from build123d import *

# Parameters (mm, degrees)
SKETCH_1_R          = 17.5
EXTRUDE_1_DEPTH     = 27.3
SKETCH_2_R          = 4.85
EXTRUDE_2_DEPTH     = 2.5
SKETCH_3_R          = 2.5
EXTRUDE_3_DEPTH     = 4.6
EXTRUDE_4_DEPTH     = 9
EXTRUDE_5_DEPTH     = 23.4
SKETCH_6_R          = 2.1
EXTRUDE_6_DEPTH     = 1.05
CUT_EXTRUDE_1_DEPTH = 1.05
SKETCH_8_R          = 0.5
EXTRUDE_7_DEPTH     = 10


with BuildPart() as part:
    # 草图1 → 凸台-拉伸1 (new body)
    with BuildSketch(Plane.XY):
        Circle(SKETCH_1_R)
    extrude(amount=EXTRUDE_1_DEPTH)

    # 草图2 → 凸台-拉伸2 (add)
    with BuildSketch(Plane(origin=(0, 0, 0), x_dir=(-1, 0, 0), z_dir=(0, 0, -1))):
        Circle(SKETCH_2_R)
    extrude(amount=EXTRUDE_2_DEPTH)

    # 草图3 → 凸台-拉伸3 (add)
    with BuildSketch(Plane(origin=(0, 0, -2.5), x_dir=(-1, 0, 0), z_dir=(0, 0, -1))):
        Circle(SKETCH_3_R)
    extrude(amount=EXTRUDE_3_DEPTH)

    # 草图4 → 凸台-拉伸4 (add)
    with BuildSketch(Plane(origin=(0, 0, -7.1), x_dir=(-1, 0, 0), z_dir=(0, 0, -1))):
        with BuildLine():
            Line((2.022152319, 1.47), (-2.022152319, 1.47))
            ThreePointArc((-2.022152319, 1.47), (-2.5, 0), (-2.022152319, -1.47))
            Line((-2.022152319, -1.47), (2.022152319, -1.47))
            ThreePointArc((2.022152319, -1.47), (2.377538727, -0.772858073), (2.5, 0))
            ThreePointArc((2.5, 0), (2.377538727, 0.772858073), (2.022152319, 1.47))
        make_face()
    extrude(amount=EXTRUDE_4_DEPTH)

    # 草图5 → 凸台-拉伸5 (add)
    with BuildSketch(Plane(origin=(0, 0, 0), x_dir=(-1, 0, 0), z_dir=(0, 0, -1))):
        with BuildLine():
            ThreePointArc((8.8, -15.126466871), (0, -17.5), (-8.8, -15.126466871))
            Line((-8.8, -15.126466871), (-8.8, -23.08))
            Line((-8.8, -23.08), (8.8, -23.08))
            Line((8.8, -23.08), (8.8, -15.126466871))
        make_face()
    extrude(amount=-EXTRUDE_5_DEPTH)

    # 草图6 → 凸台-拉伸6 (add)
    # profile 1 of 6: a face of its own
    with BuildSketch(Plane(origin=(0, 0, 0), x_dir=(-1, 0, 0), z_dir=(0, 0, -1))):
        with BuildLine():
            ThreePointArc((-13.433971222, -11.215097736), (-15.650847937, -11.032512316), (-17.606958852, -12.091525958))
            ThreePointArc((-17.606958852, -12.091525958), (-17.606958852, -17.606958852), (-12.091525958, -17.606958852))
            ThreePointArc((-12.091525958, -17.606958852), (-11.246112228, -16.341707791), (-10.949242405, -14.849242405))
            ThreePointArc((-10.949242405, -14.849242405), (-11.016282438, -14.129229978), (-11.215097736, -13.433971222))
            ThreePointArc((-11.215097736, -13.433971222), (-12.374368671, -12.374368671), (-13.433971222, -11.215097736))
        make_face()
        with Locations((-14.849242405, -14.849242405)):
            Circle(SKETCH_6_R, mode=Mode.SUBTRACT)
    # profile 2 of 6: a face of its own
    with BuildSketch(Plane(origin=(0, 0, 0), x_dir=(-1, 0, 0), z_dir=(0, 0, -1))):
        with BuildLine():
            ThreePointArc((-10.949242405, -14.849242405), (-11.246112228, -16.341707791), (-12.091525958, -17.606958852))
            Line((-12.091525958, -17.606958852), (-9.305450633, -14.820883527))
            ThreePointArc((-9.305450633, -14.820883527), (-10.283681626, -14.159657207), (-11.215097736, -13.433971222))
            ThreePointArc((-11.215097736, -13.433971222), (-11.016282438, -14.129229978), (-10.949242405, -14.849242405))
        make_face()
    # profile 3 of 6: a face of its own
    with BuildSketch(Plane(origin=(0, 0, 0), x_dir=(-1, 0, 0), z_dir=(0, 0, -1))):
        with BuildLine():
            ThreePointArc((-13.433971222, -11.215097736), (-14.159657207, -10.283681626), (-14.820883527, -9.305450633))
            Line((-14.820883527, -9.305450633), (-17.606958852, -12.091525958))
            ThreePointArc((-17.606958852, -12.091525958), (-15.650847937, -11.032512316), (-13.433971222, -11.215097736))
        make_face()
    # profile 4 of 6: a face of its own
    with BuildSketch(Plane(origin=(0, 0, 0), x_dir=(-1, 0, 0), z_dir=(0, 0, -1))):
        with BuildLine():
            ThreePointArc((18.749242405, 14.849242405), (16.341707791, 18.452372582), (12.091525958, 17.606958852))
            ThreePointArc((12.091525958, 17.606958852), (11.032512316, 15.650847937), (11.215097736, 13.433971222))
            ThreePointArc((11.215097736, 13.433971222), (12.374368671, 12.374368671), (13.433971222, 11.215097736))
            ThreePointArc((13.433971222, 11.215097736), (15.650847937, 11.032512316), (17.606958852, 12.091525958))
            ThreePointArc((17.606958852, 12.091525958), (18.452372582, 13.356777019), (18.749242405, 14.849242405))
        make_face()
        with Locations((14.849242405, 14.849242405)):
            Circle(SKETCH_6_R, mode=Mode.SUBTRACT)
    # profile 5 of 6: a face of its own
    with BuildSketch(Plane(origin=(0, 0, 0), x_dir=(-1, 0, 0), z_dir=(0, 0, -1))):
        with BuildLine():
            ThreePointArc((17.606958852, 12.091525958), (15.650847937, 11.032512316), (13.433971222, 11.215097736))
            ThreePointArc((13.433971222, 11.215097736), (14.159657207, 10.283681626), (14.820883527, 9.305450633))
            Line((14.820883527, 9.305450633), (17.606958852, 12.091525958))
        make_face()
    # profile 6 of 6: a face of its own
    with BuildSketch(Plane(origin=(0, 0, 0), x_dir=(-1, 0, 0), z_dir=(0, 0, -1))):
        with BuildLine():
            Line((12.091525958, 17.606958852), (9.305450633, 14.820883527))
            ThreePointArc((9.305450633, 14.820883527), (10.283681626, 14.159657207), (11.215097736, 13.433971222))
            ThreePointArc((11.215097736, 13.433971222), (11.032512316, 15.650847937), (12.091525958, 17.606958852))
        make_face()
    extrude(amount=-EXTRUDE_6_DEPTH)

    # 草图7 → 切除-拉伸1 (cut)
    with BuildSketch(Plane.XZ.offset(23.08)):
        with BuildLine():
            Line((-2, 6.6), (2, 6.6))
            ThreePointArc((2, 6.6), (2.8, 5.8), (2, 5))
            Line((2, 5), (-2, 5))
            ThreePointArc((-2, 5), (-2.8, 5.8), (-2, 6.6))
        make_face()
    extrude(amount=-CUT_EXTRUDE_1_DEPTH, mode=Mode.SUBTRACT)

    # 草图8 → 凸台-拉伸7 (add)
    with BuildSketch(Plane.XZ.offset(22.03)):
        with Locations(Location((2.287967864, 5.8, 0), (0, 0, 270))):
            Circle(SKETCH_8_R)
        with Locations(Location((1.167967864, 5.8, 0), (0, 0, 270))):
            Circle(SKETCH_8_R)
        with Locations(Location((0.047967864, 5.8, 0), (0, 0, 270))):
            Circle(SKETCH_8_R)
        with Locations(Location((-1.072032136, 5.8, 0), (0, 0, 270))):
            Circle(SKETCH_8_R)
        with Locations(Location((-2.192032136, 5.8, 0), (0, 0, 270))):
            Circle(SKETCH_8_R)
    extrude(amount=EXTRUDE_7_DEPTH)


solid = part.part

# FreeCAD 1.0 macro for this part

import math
import FreeCAD as App
import Part
import Sketcher

V = App.Vector
Q = App.Units.Quantity

doc = App.newDocument("Part")
params = doc.addObject("Spreadsheet::Sheet", "Params")
for row, (alias, value) in enumerate([
    ("sketch1_diameter", "35 mm"),
    ("pad1_length", "27.3 mm"),
    ("sketch2_diameter", "9.7 mm"),
    ("pad2_length", "2.5 mm"),
    ("sketch3_diameter", "5 mm"),
    ("pad3_length", "4.6 mm"),
    ("sketch4_radius", "2.5 mm"),
    ("pad4_length", "9 mm"),
    ("sketch5_radius", "17.5 mm"),
    ("sketch5_width", "17.6 mm"),
    ("pad5_length", "23.4 mm"),
    ("sketch6_diameter", "4.2 mm"),
    ("sketch6_radius", "17.5 mm"),
    ("sketch6_radius2", "3.9 mm"),
    ("pad6_length", "1.05 mm"),
    ("sketch7_radius", "0.8 mm"),
    ("sketch7_width", "4 mm"),
    ("pocket1_length", "1.05 mm"),
    ("sketch8_diameter", "1 mm"),
    ("pad7_length", "10 mm"),
], start=1):
    params.set(f"A{row}", alias)
    params.set(f"B{row}", "=" + value)
    params.setAlias(f"B{row}", alias)

body = doc.addObject("PartDesign::Body", "Body")

# Sketch on XY plane
sketch1 = body.newObject("Sketcher::SketchObject", "Sketch")
sketch1.AttachmentSupport = (doc.getObject("XY_Plane"), [""])
sketch1.MapMode = "FlatFace"
sketch1.addGeometry(Part.Circle(V(0, 0, 0), V(0, 0, 1), 18), False)
sketch1.addConstraint([
    Sketcher.Constraint("Coincident", 0, 3, -1, 1),
    Sketcher.Constraint("Diameter", 0, Q("35 mm")),
])
sketch1.setExpression("Constraints[1]", "Params.sketch1_diameter")
pad1 = body.newObject("PartDesign::Pad", "Pad")
pad1.Profile = sketch1
pad1.setExpression("Length", "Params.pad1_length")

# Sketch on XY plane
sketch2 = body.newObject("Sketcher::SketchObject", "Sketch001")
sketch2.AttachmentSupport = (doc.getObject("XY_Plane"), [""])
sketch2.MapMode = "FlatFace"
sketch2.addGeometry(Part.Circle(V(0, 0, 0), V(0, 0, 1), 4.8), False)
sketch2.addConstraint([
    Sketcher.Constraint("Coincident", 0, 3, -1, 1),
    Sketcher.Constraint("Diameter", 0, Q("9.7 mm")),
])
sketch2.setExpression("Constraints[1]", "Params.sketch2_diameter")
pad2 = body.newObject("PartDesign::Pad", "Pad001")
pad2.Profile = sketch2
pad2.setExpression("Length", "Params.pad2_length")
pad2.Reversed = True

# Sketch on XY plane
sketch3 = body.newObject("Sketcher::SketchObject", "Sketch002")
sketch3.AttachmentSupport = (doc.getObject("XY_Plane"), [""])
sketch3.MapMode = "FlatFace"
sketch3.AttachmentOffset = App.Placement(V(0, 0, -2.5), App.Rotation())
sketch3.addGeometry(Part.Circle(V(0, 0, 0), V(0, 0, 1), 2.5), False)
sketch3.addConstraint([
    Sketcher.Constraint("Coincident", 0, 3, -1, 1),
    Sketcher.Constraint("Diameter", 0, Q("5 mm")),
])
sketch3.setExpression("Constraints[1]", "Params.sketch3_diameter")
pad3 = body.newObject("PartDesign::Pad", "Pad002")
pad3.Profile = sketch3
pad3.setExpression("Length", "Params.pad3_length")
pad3.Reversed = True

# Sketch on XY plane
sketch4 = body.newObject("Sketcher::SketchObject", "Sketch003")
sketch4.AttachmentSupport = (doc.getObject("XY_Plane"), [""])
sketch4.MapMode = "FlatFace"
sketch4.AttachmentOffset = App.Placement(V(0, 0, -7.1), App.Rotation())
sketch4.addGeometry([
    Part.LineSegment(V(-2, 1.5, 0), V(2, 1.5, 0)),  # 0
    Part.ArcOfCircle(Part.Circle(V(0, 0, 0), V(0, 0, 1), 2.5), math.radians(-36), math.radians(36)),  # 1
    Part.LineSegment(V(2, -1.5, 0), V(-2, -1.5, 0)),  # 2
    Part.ArcOfCircle(Part.Circle(V(0, 0, 0), V(0, 0, 1), 2.5), math.radians(-180), math.radians(-144)),  # 3
    Part.ArcOfCircle(Part.Circle(V(0, 0, 0), V(0, 0, 1), 2.5), math.radians(144), math.radians(180)),  # 4
], False)
sketch4.addConstraint([
    Sketcher.Constraint("Coincident", 0, 2, 1, 2),
    Sketcher.Constraint("Coincident", 1, 1, 2, 1),
    Sketcher.Constraint("Coincident", 2, 2, 3, 2),
    Sketcher.Constraint("Tangent", 3, 1, 4, 2),
    Sketcher.Constraint("Coincident", 4, 1, 0, 1),
    Sketcher.Constraint("Horizontal", 0),
    Sketcher.Constraint("Horizontal", 2),
    Sketcher.Constraint("Coincident", 1, 3, -1, 1),
    Sketcher.Constraint("Coincident", 3, 3, -1, 1),
    Sketcher.Constraint("Equal", 1, 3),
    Sketcher.Constraint("Equal", 3, 4),
    Sketcher.Constraint("PointOnObject", 3, 1, -1),
    Sketcher.Constraint("Vertical", 0, 2, 1, 1),
    Sketcher.Constraint("Radius", 1, Q("2.5 mm")),
    Sketcher.Constraint("DistanceY", -1, 1, 0, 2, Q("1.47 mm")),
])
sketch4.setExpression("Constraints[13]", "Params.sketch4_radius")
pad4 = body.newObject("PartDesign::Pad", "Pad003")
pad4.Profile = sketch4
pad4.setExpression("Length", "Params.pad4_length")
pad4.Reversed = True

# Sketch on XY plane
sketch5 = body.newObject("Sketcher::SketchObject", "Sketch004")
sketch5.AttachmentSupport = (doc.getObject("XY_Plane"), [""])
sketch5.MapMode = "FlatFace"
sketch5.addGeometry([
    Part.ArcOfCircle(Part.Circle(V(0, 0, 0), V(0, 0, 1), 18), math.radians(-120), math.radians(-60)),
    Part.LineSegment(V(9, -15, 0), V(9, -23, 0)),
    Part.LineSegment(V(9, -23, 0), V(-9, -23, 0)),
    Part.LineSegment(V(-9, -23, 0), V(-9, -15, 0)),
], False)
sketch5.addConstraint([
    Sketcher.Constraint("Coincident", 0, 2, 1, 1),
    Sketcher.Constraint("Coincident", 1, 2, 2, 1),
    Sketcher.Constraint("Coincident", 2, 2, 3, 1),
    Sketcher.Constraint("Coincident", 3, 2, 0, 1),
    Sketcher.Constraint("Vertical", 1),
    Sketcher.Constraint("Horizontal", 2),
    Sketcher.Constraint("Vertical", 3),
    Sketcher.Constraint("Coincident", 0, 3, -1, 1),
    Sketcher.Constraint("Horizontal", 0, 2, 3, 2),
    Sketcher.Constraint("Radius", 0, Q("17.5 mm")),
    Sketcher.Constraint("DistanceX", 2, 2, 2, 1, Q("17.6 mm")),
    Sketcher.Constraint("DistanceY", 1, 2, -1, 1, Q("23.08 mm")),
])
sketch5.setExpression("Constraints[9]", "Params.sketch5_radius")
sketch5.setExpression("Constraints[10]", "Params.sketch5_width")
pad5 = body.newObject("PartDesign::Pad", "Pad004")
pad5.Profile = sketch5
pad5.setExpression("Length", "Params.pad5_length")

# Sketch on XY plane
sketch6 = body.newObject("Sketcher::SketchObject", "Sketch005")
sketch6.AttachmentSupport = (doc.getObject("XY_Plane"), [""])
sketch6.MapMode = "FlatFace"
sketch6.addGeometry([
    Part.ArcOfCircle(Part.Circle(V(0, 0, 0), V(0, 0, 1), 17.5), math.radians(-50.14), math.radians(-39.86)),  # 0
    Part.ArcOfCircle(Part.Circle(V(0, 0, 0), V(0, 0, 1), 17.5), math.radians(-39.86), math.radians(-32.12)),  # 1
    Part.LineSegment(V(14.8, -9.3, 0), V(17.6, -12.1, 0)),  # 2
    Part.ArcOfCircle(Part.Circle(V(14.8, -14.8, 0), V(0, 0, 1), 3.9), math.radians(-135), math.radians(45)),  # 3
    Part.LineSegment(V(12.1, -17.6, 0), V(9.3, -14.8, 0)),  # 4
    Part.ArcOfCircle(Part.Circle(V(0, 0, 0), V(0, 0, 1), 17.5), math.radians(-57.88), math.radians(-50.14)),  # 5
    Part.Circle(V(14.8, -14.8, 0), V(0, 0, 1), 2.1),  # 6
    Part.ArcOfCircle(Part.Circle(V(-14.8, 14.8, 0), V(0, 0, 1), 3.9), math.radians(45), math.radians(180)),  # 7
    Part.LineSegment(V(-12.1, 17.6, 0), V(-9.3, 14.8, 0)),  # 8
    Part.ArcOfCircle(Part.Circle(V(0, 0, 0), V(0, 0, 1), 17.5), math.radians(122.12), math.radians(129.86)),  # 9
    Part.ArcOfCircle(Part.Circle(V(0, 0, 0), V(0, 0, 1), 17.5), math.radians(129.86), math.radians(140.14)),  # 10
    Part.ArcOfCircle(Part.Circle(V(0, 0, 0), V(0, 0, 1), 17.5), math.radians(140.14), math.radians(147.88)),  # 11
    Part.LineSegment(V(-14.8, 9.3, 0), V(-17.6, 12.1, 0)),  # 12
    Part.ArcOfCircle(Part.Circle(V(-14.8, 14.8, 0), V(0, 0, 1), 3.9), math.radians(180), math.radians(225)),  # 13
    Part.Circle(V(-14.8, 14.8, 0), V(0, 0, 1), 2.1),  # 14
], False)
sketch6.addConstraint([
    Sketcher.Constraint("Tangent", 0, 2, 1, 1),
    Sketcher.Constraint("Coincident", 1, 2, 2, 1),
    Sketcher.Constraint("Tangent", 2, 2, 3, 2),
    Sketcher.Constraint("Tangent", 3, 1, 4, 1),
    Sketcher.Constraint("Coincident", 4, 2, 5, 1),
    Sketcher.Constraint("Tangent", 5, 2, 0, 1),
    Sketcher.Constraint("Tangent", 7, 1, 8, 1),
    Sketcher.Constraint("Coincident", 8, 2, 9, 1),
    Sketcher.Constraint("Tangent", 9, 2, 10, 1),
    Sketcher.Constraint("Tangent", 10, 2, 11, 1),
    Sketcher.Constraint("Coincident", 11, 2, 12, 1),
    Sketcher.Constraint("Tangent", 12, 2, 13, 2),
    Sketcher.Constraint("Tangent", 13, 1, 7, 2),
    Sketcher.Constraint("Coincident", 0, 3, -1, 1),
    Sketcher.Constraint("Coincident", 9, 3, -1, 1),
    Sketcher.Constraint("Coincident", 11, 3, -1, 1),
    Sketcher.Constraint("Coincident", 6, 3, 3, 3),
    Sketcher.Constraint("Coincident", 14, 3, 7, 3),
    Sketcher.Constraint("Equal", 0, 1),
    Sketcher.Constraint("Equal", 1, 5),
    Sketcher.Constraint("Equal", 3, 7),
    Sketcher.Constraint("Equal", 5, 9),
    Sketcher.Constraint("Equal", 7, 13),
    Sketcher.Constraint("Equal", 6, 14),
    Sketcher.Constraint("Symmetric", 3, 3, 7, 3, -1, 1),
    Sketcher.Constraint("Parallel", 2, 4),
    Sketcher.Constraint("Parallel", 4, 8),
    Sketcher.Constraint("Parallel", 8, 12),
    Sketcher.Constraint("Horizontal", 14, 3, 13, 1),
    Sketcher.Constraint("Equal", 2, 4),
    Sketcher.Constraint("Diameter", 6, Q("4.2 mm")),
    Sketcher.Constraint("Radius", 0, Q("17.5 mm")),
    Sketcher.Constraint("Radius", 3, Q("3.9 mm")),
    Sketcher.Constraint("Angle", 2, Q("-45 deg")),
    Sketcher.Constraint("DistanceX", -1, 1, 0, 2, Q("13.433971 mm")),
    Sketcher.Constraint("DistanceX", -1, 1, 2, 2, Q("17.606959 mm")),
    Sketcher.Constraint("DistanceY", 5, 2, -1, 1, Q("13.433971 mm")),
    Sketcher.Constraint("DistanceY", -1, 1, 9, 2, Q("13.433971 mm")),
    Sketcher.Constraint("DistanceX", 10, 2, -1, 1, Q("13.433971 mm")),
])
sketch6.setExpression("Constraints[30]", "Params.sketch6_diameter")
sketch6.setExpression("Constraints[31]", "Params.sketch6_radius")
sketch6.setExpression("Constraints[32]", "Params.sketch6_radius2")
pad6 = body.newObject("PartDesign::Pad", "Pad005")
pad6.Profile = sketch6
pad6.setExpression("Length", "Params.pad6_length")

# Sketch on XZ plane
sketch7 = body.newObject("Sketcher::SketchObject", "Sketch006")
sketch7.AttachmentSupport = (doc.getObject("XZ_Plane"), [""])
sketch7.MapMode = "FlatFace"
sketch7.AttachmentOffset = App.Placement(V(0, 0, 23.08), App.Rotation())
sketch7.addGeometry([
    Part.LineSegment(V(2, 6.6, 0), V(-2, 6.6, 0)),
    Part.ArcOfCircle(Part.Circle(V(-2, 5.8, 0), V(0, 0, 1), 0.8), math.radians(90), math.radians(270)),
    Part.LineSegment(V(-2, 5, 0), V(2, 5, 0)),
    Part.ArcOfCircle(Part.Circle(V(2, 5.8, 0), V(0, 0, 1), 0.8), math.radians(-90), math.radians(90)),
], False)
sketch7.addConstraint([
    Sketcher.Constraint("Tangent", 0, 2, 1, 1),
    Sketcher.Constraint("Tangent", 1, 2, 2, 1),
    Sketcher.Constraint("Tangent", 2, 2, 3, 1),
    Sketcher.Constraint("Tangent", 3, 2, 0, 1),
    Sketcher.Constraint("Horizontal", 0),
    Sketcher.Constraint("Horizontal", 2),
    Sketcher.Constraint("Radius", 1, Q("0.8 mm")),
    Sketcher.Constraint("DistanceX", 0, 2, 0, 1, Q("4 mm")),
    Sketcher.Constraint("DistanceX", 1, 3, -1, 1, Q("2 mm")),
    Sketcher.Constraint("DistanceY", -1, 1, 1, 2, Q("5 mm")),
])
sketch7.setExpression("Constraints[6]", "Params.sketch7_radius")
sketch7.setExpression("Constraints[7]", "Params.sketch7_width")
pocket1 = body.newObject("PartDesign::Pocket", "Pocket")
pocket1.Profile = sketch7
pocket1.setExpression("Length", "Params.pocket1_length")

# Sketch on XZ plane
sketch8 = body.newObject("Sketcher::SketchObject", "Sketch007")
sketch8.AttachmentSupport = (doc.getObject("XZ_Plane"), [""])
sketch8.MapMode = "FlatFace"
sketch8.AttachmentOffset = App.Placement(V(0, 0, 22.03), App.Rotation())
sketch8.addGeometry([
    Part.Circle(V(2.3, 5.8, 0), V(0, 0, 1), 0.5),  # 0
    Part.Circle(V(1.2, 5.8, 0), V(0, 0, 1), 0.5),  # 1
    Part.Circle(V(0, 5.8, 0), V(0, 0, 1), 0.5),  # 2
    Part.Circle(V(-1.1, 5.8, 0), V(0, 0, 1), 0.5),  # 3
    Part.Circle(V(-2.2, 5.8, 0), V(0, 0, 1), 0.5),  # 4
], False)
sketch8.addConstraint([
    Sketcher.Constraint("Equal", 0, 1),
    Sketcher.Constraint("Equal", 1, 2),
    Sketcher.Constraint("Equal", 2, 3),
    Sketcher.Constraint("Equal", 3, 4),
    Sketcher.Constraint("Horizontal", 0, 3, 1, 3),
    Sketcher.Constraint("Horizontal", 1, 3, 2, 3),
    Sketcher.Constraint("Horizontal", 2, 3, 3, 3),
    Sketcher.Constraint("Horizontal", 3, 3, 4, 3),
    Sketcher.Constraint("Diameter", 0, Q("1 mm")),
    Sketcher.Constraint("DistanceY", -1, 1, 0, 3, Q("5.8 mm")),
    Sketcher.Constraint("DistanceX", 1, 3, 0, 3, Q("1.12 mm")),
    Sketcher.Constraint("DistanceX", 2, 3, 1, 3, Q("1.12 mm")),
    Sketcher.Constraint("DistanceX", 3, 3, 2, 3, Q("1.12 mm")),
    Sketcher.Constraint("DistanceX", 4, 3, 3, 3, Q("1.12 mm")),
    Sketcher.Constraint("DistanceX", -1, 1, 0, 3, Q("2.287968 mm")),
])
sketch8.setExpression("Constraints[8]", "Params.sketch8_diameter")
pad7 = body.newObject("PartDesign::Pad", "Pad006")
pad7.Profile = sketch8
pad7.setExpression("Length", "Params.pad7_length")

doc.recompute()
